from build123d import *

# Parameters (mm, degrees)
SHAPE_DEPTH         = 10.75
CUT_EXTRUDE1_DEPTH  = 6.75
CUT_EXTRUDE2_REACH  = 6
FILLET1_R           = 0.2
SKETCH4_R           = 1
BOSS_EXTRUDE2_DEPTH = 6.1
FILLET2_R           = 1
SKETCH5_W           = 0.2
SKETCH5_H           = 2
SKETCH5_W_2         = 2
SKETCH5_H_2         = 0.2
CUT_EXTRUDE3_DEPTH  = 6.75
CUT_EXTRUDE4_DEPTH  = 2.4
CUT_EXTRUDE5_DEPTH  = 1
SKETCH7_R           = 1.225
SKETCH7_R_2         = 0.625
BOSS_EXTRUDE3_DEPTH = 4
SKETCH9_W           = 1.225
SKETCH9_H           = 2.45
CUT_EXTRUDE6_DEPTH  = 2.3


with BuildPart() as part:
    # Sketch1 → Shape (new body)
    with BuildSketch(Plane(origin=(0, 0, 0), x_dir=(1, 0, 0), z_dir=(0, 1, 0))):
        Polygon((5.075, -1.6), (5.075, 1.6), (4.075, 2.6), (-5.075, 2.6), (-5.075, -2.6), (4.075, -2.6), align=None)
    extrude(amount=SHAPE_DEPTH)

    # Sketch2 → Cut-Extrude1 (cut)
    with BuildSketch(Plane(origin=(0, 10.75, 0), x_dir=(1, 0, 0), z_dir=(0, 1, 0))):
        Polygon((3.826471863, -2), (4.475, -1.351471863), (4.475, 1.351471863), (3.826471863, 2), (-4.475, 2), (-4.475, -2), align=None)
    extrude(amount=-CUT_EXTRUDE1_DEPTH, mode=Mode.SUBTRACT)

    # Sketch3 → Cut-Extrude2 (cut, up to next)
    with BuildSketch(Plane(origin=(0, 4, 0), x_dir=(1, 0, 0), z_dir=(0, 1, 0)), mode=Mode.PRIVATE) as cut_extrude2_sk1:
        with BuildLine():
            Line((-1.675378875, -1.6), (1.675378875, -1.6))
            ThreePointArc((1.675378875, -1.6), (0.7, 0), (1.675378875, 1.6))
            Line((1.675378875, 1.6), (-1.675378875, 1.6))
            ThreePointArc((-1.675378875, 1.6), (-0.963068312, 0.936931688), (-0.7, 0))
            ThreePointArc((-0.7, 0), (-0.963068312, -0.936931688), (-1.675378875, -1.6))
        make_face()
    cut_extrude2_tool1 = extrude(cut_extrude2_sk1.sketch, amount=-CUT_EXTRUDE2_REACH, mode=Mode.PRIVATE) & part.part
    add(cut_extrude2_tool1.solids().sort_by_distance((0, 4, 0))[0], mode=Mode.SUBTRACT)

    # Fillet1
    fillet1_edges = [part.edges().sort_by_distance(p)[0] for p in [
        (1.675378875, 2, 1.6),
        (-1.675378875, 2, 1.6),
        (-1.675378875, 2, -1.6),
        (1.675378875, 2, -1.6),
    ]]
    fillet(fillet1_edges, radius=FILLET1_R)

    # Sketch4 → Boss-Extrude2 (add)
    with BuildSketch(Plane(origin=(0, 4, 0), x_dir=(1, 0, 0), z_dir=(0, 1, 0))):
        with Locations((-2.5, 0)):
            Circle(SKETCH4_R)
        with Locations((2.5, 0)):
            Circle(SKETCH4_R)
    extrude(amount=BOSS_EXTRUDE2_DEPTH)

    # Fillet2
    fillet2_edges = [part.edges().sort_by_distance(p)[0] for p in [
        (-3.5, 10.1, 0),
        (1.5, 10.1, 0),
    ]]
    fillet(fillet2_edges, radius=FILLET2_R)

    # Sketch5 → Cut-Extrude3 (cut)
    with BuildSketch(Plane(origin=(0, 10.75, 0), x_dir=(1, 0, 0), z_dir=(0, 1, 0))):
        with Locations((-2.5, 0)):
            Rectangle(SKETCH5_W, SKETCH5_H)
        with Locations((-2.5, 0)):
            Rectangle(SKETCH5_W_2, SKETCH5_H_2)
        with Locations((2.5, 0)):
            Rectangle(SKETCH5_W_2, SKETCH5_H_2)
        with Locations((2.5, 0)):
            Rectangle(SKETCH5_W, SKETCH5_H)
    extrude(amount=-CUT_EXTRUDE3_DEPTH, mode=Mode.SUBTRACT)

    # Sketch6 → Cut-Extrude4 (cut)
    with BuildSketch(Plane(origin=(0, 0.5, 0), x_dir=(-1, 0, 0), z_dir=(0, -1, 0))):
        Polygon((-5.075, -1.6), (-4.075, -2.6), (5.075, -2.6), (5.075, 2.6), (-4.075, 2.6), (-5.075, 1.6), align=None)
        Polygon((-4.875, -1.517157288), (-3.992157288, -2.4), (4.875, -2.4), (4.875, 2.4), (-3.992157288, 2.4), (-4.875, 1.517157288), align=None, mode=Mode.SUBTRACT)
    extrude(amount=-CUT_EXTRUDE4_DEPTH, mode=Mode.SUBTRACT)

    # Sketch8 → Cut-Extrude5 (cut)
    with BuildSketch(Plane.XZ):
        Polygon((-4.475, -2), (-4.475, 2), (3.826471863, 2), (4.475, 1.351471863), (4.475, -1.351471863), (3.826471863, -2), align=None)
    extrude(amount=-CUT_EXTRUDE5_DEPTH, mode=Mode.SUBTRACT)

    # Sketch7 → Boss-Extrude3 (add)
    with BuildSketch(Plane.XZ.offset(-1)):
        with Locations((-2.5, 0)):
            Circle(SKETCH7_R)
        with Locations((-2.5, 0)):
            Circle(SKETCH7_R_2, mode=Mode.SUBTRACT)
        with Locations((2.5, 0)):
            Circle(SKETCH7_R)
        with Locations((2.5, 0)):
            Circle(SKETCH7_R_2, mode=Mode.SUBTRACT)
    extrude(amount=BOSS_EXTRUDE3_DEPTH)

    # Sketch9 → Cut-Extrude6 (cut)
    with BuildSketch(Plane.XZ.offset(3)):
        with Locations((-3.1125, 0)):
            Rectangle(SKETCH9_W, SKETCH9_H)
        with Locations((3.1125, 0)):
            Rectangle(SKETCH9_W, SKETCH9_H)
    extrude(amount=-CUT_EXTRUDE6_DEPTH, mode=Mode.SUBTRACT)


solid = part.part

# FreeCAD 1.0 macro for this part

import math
import FreeCAD as App
import Part
import Sketcher
Q = App.Units.Quantity


def edges_at(feature, points):
    """Names of the edges that pass closest to the given points."""
    edges = feature.Shape.Edges
    near = lambda p: min(range(len(edges)), key=lambda i: edges[i].distToShape(Part.Vertex(*p))[0])
    return sorted({f"Edge{near(p) + 1}" for p in points})

doc = App.newDocument("Part")
params = doc.addObject("Spreadsheet::Sheet", "Params")
for row, (alias, value) in enumerate([
    ("sketch1_height", "3.2 mm"),
    ("sketch1_height2", "5.2 mm"),
    ("sketch1_width", "9.15 mm"),
    ("pad1_length", "10.75 mm"),
    ("sketch2_height", "4 mm"),
    ("pocket1_length", "6.75 mm"),
    ("sketch3_radius", "1.8 mm"),
    ("fillet_radius", "0.2 mm"),
    ("sketch4_diameter", "2 mm"),
    ("pad2_length", "6.1 mm"),
    ("fillet2_radius", "1 mm"),
    ("sketch5_width", "0.2 mm"),
    ("sketch5_width2", "0.9 mm"),
    ("pocket3_length", "6.75 mm"),
    ("sketch6_height", "5.2 mm"),
    ("sketch6_height2", "3.2 mm"),
    ("sketch6_height3", "4.8 mm"),
    ("sketch6_width", "9.15 mm"),
    ("pocket4_length", "2.4 mm"),
    ("sketch7_height", "4 mm"),
    ("pocket5_length", "1 mm"),
    ("sketch8_diameter", "2.45 mm"),
    ("sketch8_diameter2", "1.25 mm"),
    ("pad3_length", "4 mm"),
    ("sketch9_height", "2.45 mm"),
    ("pocket6_length", "2.3 mm"),
], start=1):
    params.set(f"A{row}", alias)
    params.set(f"B{row}", "=" + value)
    params.setAlias(f"B{row}", alias)

body = doc.addObject("PartDesign::Body", "Body")

sketch1 = doc.addObject("Sketcher::SketchObject", "Sketch")
body.addObject(sketch1)
sketch1.AttachmentSupport = (doc.XZ_Plane, [""])
sketch1.MapMode = "FlatFace"
sketch1.addGeometry([
    Part.LineSegment(App.Vector(5.1, 1.6, 0), App.Vector(5.1, -1.6, 0)),
    Part.LineSegment(App.Vector(5.1, -1.6, 0), App.Vector(4.1, -2.6, 0)),
    Part.LineSegment(App.Vector(4.1, -2.6, 0), App.Vector(-5.1, -2.6, 0)),
    Part.LineSegment(App.Vector(-5.1, -2.6, 0), App.Vector(-5.1, 2.6, 0)),
    Part.LineSegment(App.Vector(-5.1, 2.6, 0), App.Vector(4.1, 2.6, 0)),
    Part.LineSegment(App.Vector(4.1, 2.6, 0), App.Vector(5.1, 1.6, 0)),
], False)
sketch1.addConstraint([
    Sketcher.Constraint("Coincident", 0, 2, 1, 1),
    Sketcher.Constraint("Coincident", 1, 2, 2, 1),
    Sketcher.Constraint("Coincident", 2, 2, 3, 1),
    Sketcher.Constraint("Coincident", 3, 2, 4, 1),
    Sketcher.Constraint("Coincident", 4, 2, 5, 1),
    Sketcher.Constraint("Coincident", 5, 2, 0, 1),
    Sketcher.Constraint("Vertical", 0),
    Sketcher.Constraint("Horizontal", 2),
    Sketcher.Constraint("Vertical", 3),
    Sketcher.Constraint("Horizontal", 4),
    Sketcher.Constraint("Symmetric", 1, 2, 4, 2, -1),
    Sketcher.Constraint("Perpendicular", 1, 5),
    Sketcher.Constraint("Equal", 1, 5),
    Sketcher.Constraint("DistanceY", 0, 2, 0, 1, Q("3.2 mm")),
    Sketcher.Constraint("DistanceY", 3, 1, 3, 2, Q("5.2 mm")),
    Sketcher.Constraint("DistanceX", 2, 2, 2, 1, Q("9.15 mm")),
    Sketcher.Constraint("DistanceX", -1, 1, 0, 2, Q("5.075 mm")),
])
sketch1.setExpression("Constraints[13]", "Params.sketch1_height")
sketch1.setExpression("Constraints[14]", "Params.sketch1_height2")
sketch1.setExpression("Constraints[15]", "Params.sketch1_width")
pad1 = doc.addObject("PartDesign::Pad", "Pad")
body.addObject(pad1)
pad1.Profile = sketch1
pad1.setExpression("Length", "Params.pad1_length")
pad1.Reversed = True

sketch2 = doc.addObject("Sketcher::SketchObject", "Sketch001")
body.addObject(sketch2)
sketch2.AttachmentSupport = (doc.XZ_Plane, [""])
sketch2.MapMode = "FlatFace"
sketch2.AttachmentOffset = App.Placement(App.Vector(0, 0, -10.75), App.Rotation())
sketch2.addGeometry([
    Part.LineSegment(App.Vector(3.8, 2, 0), App.Vector(4.5, 1.4, 0)),
    Part.LineSegment(App.Vector(4.5, 1.4, 0), App.Vector(4.5, -1.4, 0)),
    Part.LineSegment(App.Vector(4.5, -1.4, 0), App.Vector(3.8, -2, 0)),
    Part.LineSegment(App.Vector(3.8, -2, 0), App.Vector(-4.5, -2, 0)),
    Part.LineSegment(App.Vector(-4.5, -2, 0), App.Vector(-4.5, 2, 0)),
    Part.LineSegment(App.Vector(-4.5, 2, 0), App.Vector(3.8, 2, 0)),
], False)
sketch2.addConstraint([
    Sketcher.Constraint("Coincident", 0, 2, 1, 1),
    Sketcher.Constraint("Coincident", 1, 2, 2, 1),
    Sketcher.Constraint("Coincident", 2, 2, 3, 1),
    Sketcher.Constraint("Coincident", 3, 2, 4, 1),
    Sketcher.Constraint("Coincident", 4, 2, 5, 1),
    Sketcher.Constraint("Coincident", 5, 2, 0, 1),
    Sketcher.Constraint("Vertical", 1),
    Sketcher.Constraint("Horizontal", 3),
    Sketcher.Constraint("Vertical", 4),
    Sketcher.Constraint("Horizontal", 5),
    Sketcher.Constraint("Symmetric", 2, 2, 5, 2, -1),
    Sketcher.Constraint("Perpendicular", 0, 2),
    Sketcher.Constraint("Equal", 0, 2),
    Sketcher.Constraint("DistanceY", 4, 1, 4, 2, Q("4 mm")),
    Sketcher.Constraint("DistanceX", 3, 2, 1, 2, Q("8.95 mm")),
    Sketcher.Constraint("DistanceX", -1, 1, 0, 2, Q("4.475 mm")),
    Sketcher.Constraint("DistanceX", 3, 2, 3, 1, Q("8.301472 mm")),
])
sketch2.setExpression("Constraints[13]", "Params.sketch2_height")
pocket1 = doc.addObject("PartDesign::Pocket", "Pocket")
body.addObject(pocket1)
pocket1.Profile = sketch2
pocket1.setExpression("Length", "Params.pocket1_length")
pocket1.Reversed = True

sketch3 = doc.addObject("Sketcher::SketchObject", "Sketch002")
body.addObject(sketch3)
sketch3.AttachmentSupport = (doc.XZ_Plane, [""])
sketch3.MapMode = "FlatFace"
sketch3.AttachmentOffset = App.Placement(App.Vector(0, 0, -4), App.Rotation())
sketch3.addGeometry([
    Part.LineSegment(App.Vector(-1.7, 1.6, 0), App.Vector(1.7, 1.6, 0)),
    Part.ArcOfCircle(Part.Circle(App.Vector(2.5, 0, 0), App.Vector(0, 0, 1), 1.8), math.radians(117), math.radians(243)),
    Part.LineSegment(App.Vector(1.7, -1.6, 0), App.Vector(-1.7, -1.6, 0)),
    Part.ArcOfCircle(Part.Circle(App.Vector(-2.5, 0, 0), App.Vector(0, 0, 1), 1.8), math.radians(-63), math.radians(0)),
    Part.ArcOfCircle(Part.Circle(App.Vector(-2.5, 0, 0), App.Vector(0, 0, 1), 1.8), math.radians(0), math.radians(63)),
], False)
sketch3.addConstraint([
    Sketcher.Constraint("Coincident", 0, 2, 1, 1),
    Sketcher.Constraint("Coincident", 1, 2, 2, 1),
    Sketcher.Constraint("Coincident", 2, 2, 3, 1),
    Sketcher.Constraint("Tangent", 3, 2, 4, 1),
    Sketcher.Constraint("Coincident", 4, 2, 0, 1),
    Sketcher.Constraint("Horizontal", 0),
    Sketcher.Constraint("Horizontal", 2),
    Sketcher.Constraint("Equal", 1, 3),
    Sketcher.Constraint("Equal", 3, 4),
    Sketcher.Constraint("Symmetric", 1, 3, 3, 3, -1, 1),
    Sketcher.Constraint("Symmetric", 0, 2, 1, 2, -1),
    Sketcher.Constraint("PointOnObject", 3, 2, -1),
    Sketcher.Constraint("Radius", 1, Q("1.8 mm")),
    Sketcher.Constraint("DistanceX", 3, 3, 1, 3, Q("5 mm")),
    Sketcher.Constraint("DistanceY", -1, 1, 0, 2, Q("1.6 mm")),
])
sketch3.setExpression("Constraints[12]", "Params.sketch3_radius")
pocket2 = doc.addObject("PartDesign::Pocket", "Pocket001")
body.addObject(pocket2)
pocket2.Profile = sketch3
pocket2.Type = "UpToFirst"
pocket2.Reversed = True
doc.recompute()

fillet = doc.addObject("PartDesign::Fillet", "Fillet")
body.addObject(fillet)
fillet.Base = (pocket2, edges_at(pocket2, [
    (1.675, 2, 1.6),
    (-1.675, 2, 1.6),
    (-1.675, 2, -1.6),
    (1.675, 2, -1.6),
]))
fillet.setExpression("Radius", "Params.fillet_radius")

sketch4 = doc.addObject("Sketcher::SketchObject", "Sketch003")
body.addObject(sketch4)
sketch4.AttachmentSupport = (doc.XZ_Plane, [""])
sketch4.MapMode = "FlatFace"
sketch4.AttachmentOffset = App.Placement(App.Vector(0, 0, -4), App.Rotation())
sketch4.addGeometry([
    Part.Circle(App.Vector(-2.5, 0, 0), App.Vector(0, 0, 1), 1),
    Part.Circle(App.Vector(2.5, 0, 0), App.Vector(0, 0, 1), 1),
], False)
sketch4.addConstraint([
    Sketcher.Constraint("Equal", 0, 1),
    Sketcher.Constraint("Symmetric", 0, 3, 1, 3, -1, 1),
    Sketcher.Constraint("PointOnObject", 0, 3, -1),
    Sketcher.Constraint("Diameter", 0, Q("2 mm")),
    Sketcher.Constraint("DistanceX", 0, 3, 1, 3, Q("5 mm")),
])
sketch4.setExpression("Constraints[3]", "Params.sketch4_diameter")
pad2 = doc.addObject("PartDesign::Pad", "Pad001")
body.addObject(pad2)
pad2.Profile = sketch4
pad2.setExpression("Length", "Params.pad2_length")
pad2.Reversed = True
doc.recompute()

fillet2 = doc.addObject("PartDesign::Fillet", "Fillet001")
body.addObject(fillet2)
fillet2.Base = (pad2, edges_at(pad2, [(-3.5, 10.1, 0), (1.5, 10.1, 0)]))
fillet2.setExpression("Radius", "Params.fillet2_radius")

sketch5 = doc.addObject("Sketcher::SketchObject", "Sketch004")
body.addObject(sketch5)
sketch5.AttachmentSupport = (doc.XZ_Plane, [""])
sketch5.MapMode = "FlatFace"
sketch5.AttachmentOffset = App.Placement(App.Vector(0, 0, -10.75), App.Rotation())
sketch5.addGeometry([
    Part.LineSegment(App.Vector(-2.6, 0.1, 0), App.Vector(-2.6, 1, 0)),
    Part.LineSegment(App.Vector(-2.6, 1, 0), App.Vector(-2.4, 1, 0)),
    Part.LineSegment(App.Vector(-2.4, 1, 0), App.Vector(-2.4, 0.1, 0)),
    Part.LineSegment(App.Vector(-2.4, 0.1, 0), App.Vector(-1.5, 0.1, 0)),
    Part.LineSegment(App.Vector(-1.5, 0.1, 0), App.Vector(-1.5, -0.1, 0)),
    Part.LineSegment(App.Vector(-1.5, -0.1, 0), App.Vector(-2.4, -0.1, 0)),
    Part.LineSegment(App.Vector(-2.4, -0.1, 0), App.Vector(-2.4, -1, 0)),
    Part.LineSegment(App.Vector(-2.4, -1, 0), App.Vector(-2.6, -1, 0)),
    Part.LineSegment(App.Vector(-2.6, -1, 0), App.Vector(-2.6, -0.1, 0)),
    Part.LineSegment(App.Vector(-2.6, -0.1, 0), App.Vector(-3.5, -0.1, 0)),
    Part.LineSegment(App.Vector(-3.5, -0.1, 0), App.Vector(-3.5, 0.1, 0)),
    Part.LineSegment(App.Vector(-3.5, 0.1, 0), App.Vector(-2.6, 0.1, 0)),
    Part.LineSegment(App.Vector(1.5, -0.1, 0), App.Vector(1.5, 0.1, 0)),
    Part.LineSegment(App.Vector(1.5, 0.1, 0), App.Vector(2.4, 0.1, 0)),
    Part.LineSegment(App.Vector(2.4, 0.1, 0), App.Vector(2.4, 1, 0)),
    Part.LineSegment(App.Vector(2.4, 1, 0), App.Vector(2.6, 1, 0)),
    Part.LineSegment(App.Vector(2.6, 1, 0), App.Vector(2.6, 0.1, 0)),
    Part.LineSegment(App.Vector(2.6, 0.1, 0), App.Vector(3.5, 0.1, 0)),
    Part.LineSegment(App.Vector(3.5, 0.1, 0), App.Vector(3.5, -0.1, 0)),
    Part.LineSegment(App.Vector(3.5, -0.1, 0), App.Vector(2.6, -0.1, 0)),
    Part.LineSegment(App.Vector(2.6, -0.1, 0), App.Vector(2.6, -1, 0)),
    Part.LineSegment(App.Vector(2.6, -1, 0), App.Vector(2.4, -1, 0)),
    Part.LineSegment(App.Vector(2.4, -1, 0), App.Vector(2.4, -0.1, 0)),
    Part.LineSegment(App.Vector(2.4, -0.1, 0), App.Vector(1.5, -0.1, 0)),
], False)
sketch5.addConstraint([
    Sketcher.Constraint("Coincident", 0, 2, 1, 1),
    Sketcher.Constraint("Coincident", 1, 2, 2, 1),
    Sketcher.Constraint("Coincident", 2, 2, 3, 1),
    Sketcher.Constraint("Coincident", 3, 2, 4, 1),
    Sketcher.Constraint("Coincident", 4, 2, 5, 1),
    Sketcher.Constraint("Coincident", 5, 2, 6, 1),
    Sketcher.Constraint("Coincident", 6, 2, 7, 1),
    Sketcher.Constraint("Coincident", 7, 2, 8, 1),
    Sketcher.Constraint("Coincident", 8, 2, 9, 1),
    Sketcher.Constraint("Coincident", 9, 2, 10, 1),
    Sketcher.Constraint("Coincident", 10, 2, 11, 1),
    Sketcher.Constraint("Coincident", 11, 2, 0, 1),
    Sketcher.Constraint("Coincident", 12, 2, 13, 1),
    Sketcher.Constraint("Coincident", 13, 2, 14, 1),
    Sketcher.Constraint("Coincident", 14, 2, 15, 1),
    Sketcher.Constraint("Coincident", 15, 2, 16, 1),
    Sketcher.Constraint("Coincident", 16, 2, 17, 1),
    Sketcher.Constraint("Coincident", 17, 2, 18, 1),
    Sketcher.Constraint("Coincident", 18, 2, 19, 1),
    Sketcher.Constraint("Coincident", 19, 2, 20, 1),
    Sketcher.Constraint("Coincident", 20, 2, 21, 1),
    Sketcher.Constraint("Coincident", 21, 2, 22, 1),
    Sketcher.Constraint("Coincident", 22, 2, 23, 1),
    Sketcher.Constraint("Coincident", 23, 2, 12, 1),
    Sketcher.Constraint("Vertical", 0),
    Sketcher.Constraint("Horizontal", 1),
    Sketcher.Constraint("Vertical", 2),
    Sketcher.Constraint("Horizontal", 3),
    Sketcher.Constraint("Vertical", 4),
    Sketcher.Constraint("Horizontal", 5),
    Sketcher.Constraint("Vertical", 6),
    Sketcher.Constraint("Horizontal", 7),
    Sketcher.Constraint("Vertical", 8),
    Sketcher.Constraint("Horizontal", 9),
    Sketcher.Constraint("Vertical", 10),
    Sketcher.Constraint("Horizontal", 11),
    Sketcher.Constraint("Vertical", 12),
    Sketcher.Constraint("Horizontal", 13),
    Sketcher.Constraint("Vertical", 14),
    Sketcher.Constraint("Horizontal", 15),
    Sketcher.Constraint("Vertical", 16),
    Sketcher.Constraint("Horizontal", 17),
    Sketcher.Constraint("Vertical", 18),
    Sketcher.Constraint("Horizontal", 19),
    Sketcher.Constraint("Vertical", 20),
    Sketcher.Constraint("Horizontal", 21),
    Sketcher.Constraint("Vertical", 22),
    Sketcher.Constraint("Horizontal", 23),
    Sketcher.Constraint("Symmetric", 4, 2, 12, 2, -1, 1),
    Sketcher.Constraint("Symmetric", 6, 2, 14, 2, -1, 1),
    Sketcher.Constraint("Symmetric", 8, 2, 16, 2, -1, 1),
    Sketcher.Constraint("Symmetric", 10, 2, 18, 2, -1, 1),
    Sketcher.Constraint("Symmetric", 0, 2, 20, 2, -1, 1),
    Sketcher.Constraint("Symmetric", 2, 2, 22, 2, -1, 1),
    Sketcher.Constraint("Symmetric", 2, 2, 13, 2, -2),
    Sketcher.Constraint("Symmetric", 0, 2, 15, 2, -2),
    Sketcher.Constraint("Horizontal", 5, 2, 8, 2),
    Sketcher.Constraint("Horizontal", 3, 2, 10, 2),
    Sketcher.Constraint("Equal", 5, 9),
    Sketcher.Constraint("Equal", 23, 0),
    Sketcher.Constraint("Equal", 21, 4),
    Sketcher.Constraint("DistanceX", 1, 1, 1, 2, Q("0.2 mm")),
    Sketcher.Constraint("DistanceX", 3, 1, 3, 2, Q("0.9 mm")),
    Sketcher.Constraint("DistanceX", 3, 2, 12, 2, Q("3 mm")),
])
sketch5.setExpression("Constraints[61]", "Params.sketch5_width")
sketch5.setExpression("Constraints[62]", "Params.sketch5_width2")
pocket3 = doc.addObject("PartDesign::Pocket", "Pocket002")
body.addObject(pocket3)
pocket3.Profile = sketch5
pocket3.setExpression("Length", "Params.pocket3_length")
pocket3.Reversed = True

sketch6 = doc.addObject("Sketcher::SketchObject", "Sketch005")
body.addObject(sketch6)
sketch6.AttachmentSupport = (doc.XZ_Plane, [""])
sketch6.MapMode = "FlatFace"
sketch6.AttachmentOffset = App.Placement(App.Vector(0, 0, -0.5), App.Rotation())
sketch6.addGeometry([
    Part.LineSegment(App.Vector(5.1, 1.6, 0), App.Vector(4.1, 2.6, 0)),
    Part.LineSegment(App.Vector(4.1, 2.6, 0), App.Vector(-5.1, 2.6, 0)),
    Part.LineSegment(App.Vector(-5.1, 2.6, 0), App.Vector(-5.1, -2.6, 0)),
    Part.LineSegment(App.Vector(-5.1, -2.6, 0), App.Vector(4.1, -2.6, 0)),
    Part.LineSegment(App.Vector(4.1, -2.6, 0), App.Vector(5.1, -1.6, 0)),
    Part.LineSegment(App.Vector(5.1, -1.6, 0), App.Vector(5.1, 1.6, 0)),
    Part.LineSegment(App.Vector(4, 2.4, 0), App.Vector(4.9, 1.5, 0)),
    Part.LineSegment(App.Vector(4.9, 1.5, 0), App.Vector(4.9, -1.5, 0)),
    Part.LineSegment(App.Vector(4.9, -1.5, 0), App.Vector(4, -2.4, 0)),
    Part.LineSegment(App.Vector(4, -2.4, 0), App.Vector(-4.9, -2.4, 0)),
    Part.LineSegment(App.Vector(-4.9, -2.4, 0), App.Vector(-4.9, 2.4, 0)),
    Part.LineSegment(App.Vector(-4.9, 2.4, 0), App.Vector(4, 2.4, 0)),
], False)
sketch6.addConstraint([
    Sketcher.Constraint("Coincident", 0, 2, 1, 1),
    Sketcher.Constraint("Coincident", 1, 2, 2, 1),
    Sketcher.Constraint("Coincident", 2, 2, 3, 1),
    Sketcher.Constraint("Coincident", 3, 2, 4, 1),
    Sketcher.Constraint("Coincident", 4, 2, 5, 1),
    Sketcher.Constraint("Coincident", 5, 2, 0, 1),
    Sketcher.Constraint("Coincident", 6, 2, 7, 1),
    Sketcher.Constraint("Coincident", 7, 2, 8, 1),
    Sketcher.Constraint("Coincident", 8, 2, 9, 1),
    Sketcher.Constraint("Coincident", 9, 2, 10, 1),
    Sketcher.Constraint("Coincident", 10, 2, 11, 1),
    Sketcher.Constraint("Coincident", 11, 2, 6, 1),
    Sketcher.Constraint("Horizontal", 1),
    Sketcher.Constraint("Vertical", 2),
    Sketcher.Constraint("Horizontal", 3),
    Sketcher.Constraint("Vertical", 5),
    Sketcher.Constraint("Vertical", 7),
    Sketcher.Constraint("Horizontal", 9),
    Sketcher.Constraint("Vertical", 10),
    Sketcher.Constraint("Horizontal", 11),
    Sketcher.Constraint("Symmetric", 0, 2, 3, 2, -1),
    Sketcher.Constraint("Symmetric", 8, 2, 11, 2, -1),
    Sketcher.Constraint("Perpendicular", 0, 4),
    Sketcher.Constraint("Perpendicular", 4, 6),
    Sketcher.Constraint("Perpendicular", 6, 8),
    Sketcher.Constraint("Equal", 0, 4),
    Sketcher.Constraint("DistanceY", 2, 2, 2, 1, Q("5.2 mm")),
    Sketcher.Constraint("DistanceY", 5, 1, 5, 2, Q("3.2 mm")),
    Sketcher.Constraint("DistanceY", 10, 1, 10, 2, Q("4.8 mm")),
    Sketcher.Constraint("DistanceX", 1, 2, 1, 1, Q("9.15 mm")),
    Sketcher.Constraint("DistanceX", 6, 2, 5, 2, Q("0.2 mm")),
    Sketcher.Constraint("DistanceX", 2, 2, 9, 2, Q("0.2 mm")),
    Sketcher.Constraint("DistanceX", -1, 1, 0, 2, Q("4.075 mm")),
    Sketcher.Constraint("Distance", 6, Q("1.248528 mm")),
])
sketch6.setExpression("Constraints[26]", "Params.sketch6_height")
sketch6.setExpression("Constraints[27]", "Params.sketch6_height2")
sketch6.setExpression("Constraints[28]", "Params.sketch6_height3")
sketch6.setExpression("Constraints[29]", "Params.sketch6_width")
pocket4 = doc.addObject("PartDesign::Pocket", "Pocket003")
body.addObject(pocket4)
pocket4.Profile = sketch6
pocket4.setExpression("Length", "Params.pocket4_length")

sketch7 = doc.addObject("Sketcher::SketchObject", "Sketch006")
body.addObject(sketch7)
sketch7.AttachmentSupport = (doc.XZ_Plane, [""])
sketch7.MapMode = "FlatFace"
sketch7.addGeometry([
    Part.LineSegment(App.Vector(-4.5, 2, 0), App.Vector(-4.5, -2, 0)),
    Part.LineSegment(App.Vector(-4.5, -2, 0), App.Vector(3.8, -2, 0)),
    Part.LineSegment(App.Vector(3.8, -2, 0), App.Vector(4.5, -1.4, 0)),
    Part.LineSegment(App.Vector(4.5, -1.4, 0), App.Vector(4.5, 1.4, 0)),
    Part.LineSegment(App.Vector(4.5, 1.4, 0), App.Vector(3.8, 2, 0)),
    Part.LineSegment(App.Vector(3.8, 2, 0), App.Vector(-4.5, 2, 0)),
], False)
sketch7.addConstraint([
    Sketcher.Constraint("Coincident", 0, 2, 1, 1),
    Sketcher.Constraint("Coincident", 1, 2, 2, 1),
    Sketcher.Constraint("Coincident", 2, 2, 3, 1),
    Sketcher.Constraint("Coincident", 3, 2, 4, 1),
    Sketcher.Constraint("Coincident", 4, 2, 5, 1),
    Sketcher.Constraint("Coincident", 5, 2, 0, 1),
    Sketcher.Constraint("Vertical", 0),
    Sketcher.Constraint("Horizontal", 1),
    Sketcher.Constraint("Vertical", 3),
    Sketcher.Constraint("Horizontal", 5),
    Sketcher.Constraint("Symmetric", 1, 2, 4, 2, -1),
    Sketcher.Constraint("Perpendicular", 2, 4),
    Sketcher.Constraint("Equal", 2, 4),
    Sketcher.Constraint("DistanceY", 0, 2, 0, 1, Q("4 mm")),
    Sketcher.Constraint("DistanceX", 0, 2, 2, 2, Q("8.95 mm")),
    Sketcher.Constraint("DistanceX", 0, 2, -1, 1, Q("4.475 mm")),
    Sketcher.Constraint("DistanceX", 1, 1, 1, 2, Q("8.301472 mm")),
])
sketch7.setExpression("Constraints[13]", "Params.sketch7_height")
pocket5 = doc.addObject("PartDesign::Pocket", "Pocket004")
body.addObject(pocket5)
pocket5.Profile = sketch7
pocket5.setExpression("Length", "Params.pocket5_length")

sketch8 = doc.addObject("Sketcher::SketchObject", "Sketch007")
body.addObject(sketch8)
sketch8.AttachmentSupport = (doc.XZ_Plane, [""])
sketch8.MapMode = "FlatFace"
sketch8.AttachmentOffset = App.Placement(App.Vector(0, 0, -1), App.Rotation())
sketch8.addGeometry([
    Part.Circle(App.Vector(-2.5, 0, 0), App.Vector(0, 0, 1), 1.2),
    Part.Circle(App.Vector(-2.5, 0, 0), App.Vector(0, 0, 1), 0.6),
    Part.Circle(App.Vector(2.5, 0, 0), App.Vector(0, 0, 1), 1.2),
    Part.Circle(App.Vector(2.5, 0, 0), App.Vector(0, 0, 1), 0.6),
], False)
sketch8.addConstraint([
    Sketcher.Constraint("Coincident", 1, 3, 0, 3),
    Sketcher.Constraint("Coincident", 3, 3, 2, 3),
    Sketcher.Constraint("Equal", 0, 2),
    Sketcher.Constraint("Equal", 1, 3),
    Sketcher.Constraint("Symmetric", 0, 3, 2, 3, -1, 1),
    Sketcher.Constraint("PointOnObject", 0, 3, -1),
    Sketcher.Constraint("Diameter", 0, Q("2.45 mm")),
    Sketcher.Constraint("Diameter", 1, Q("1.25 mm")),
    Sketcher.Constraint("DistanceX", 0, 3, 2, 3, Q("5 mm")),
])
sketch8.setExpression("Constraints[6]", "Params.sketch8_diameter")
sketch8.setExpression("Constraints[7]", "Params.sketch8_diameter2")
pad3 = doc.addObject("PartDesign::Pad", "Pad002")
body.addObject(pad3)
pad3.Profile = sketch8
pad3.setExpression("Length", "Params.pad3_length")

sketch9 = doc.addObject("Sketcher::SketchObject", "Sketch008")
body.addObject(sketch9)
sketch9.AttachmentSupport = (doc.XZ_Plane, [""])
sketch9.MapMode = "FlatFace"
sketch9.AttachmentOffset = App.Placement(App.Vector(0, 0, 3), App.Rotation())
sketch9.addGeometry([
    Part.LineSegment(App.Vector(-3.7, 1.2, 0), App.Vector(-3.7, -1.2, 0)),
    Part.LineSegment(App.Vector(-3.7, -1.2, 0), App.Vector(-2.5, -1.2, 0)),
    Part.LineSegment(App.Vector(-2.5, -1.2, 0), App.Vector(-2.5, 1.2, 0)),
    Part.LineSegment(App.Vector(-2.5, 1.2, 0), App.Vector(-3.7, 1.2, 0)),
    Part.LineSegment(App.Vector(2.5, 1.2, 0), App.Vector(2.5, -1.2, 0)),
    Part.LineSegment(App.Vector(2.5, -1.2, 0), App.Vector(3.7, -1.2, 0)),
    Part.LineSegment(App.Vector(3.7, -1.2, 0), App.Vector(3.7, 1.2, 0)),
    Part.LineSegment(App.Vector(3.7, 1.2, 0), App.Vector(2.5, 1.2, 0)),
], False)
sketch9.addConstraint([
    Sketcher.Constraint("Coincident", 0, 2, 1, 1),
    Sketcher.Constraint("Coincident", 1, 2, 2, 1),
    Sketcher.Constraint("Coincident", 2, 2, 3, 1),
    Sketcher.Constraint("Coincident", 3, 2, 0, 1),
    Sketcher.Constraint("Coincident", 4, 2, 5, 1),
    Sketcher.Constraint("Coincident", 5, 2, 6, 1),
    Sketcher.Constraint("Coincident", 6, 2, 7, 1),
    Sketcher.Constraint("Coincident", 7, 2, 4, 1),
    Sketcher.Constraint("Vertical", 0),
    Sketcher.Constraint("Horizontal", 1),
    Sketcher.Constraint("Vertical", 2),
    Sketcher.Constraint("Horizontal", 3),
    Sketcher.Constraint("Vertical", 4),
    Sketcher.Constraint("Horizontal", 5),
    Sketcher.Constraint("Vertical", 6),
    Sketcher.Constraint("Horizontal", 7),
    Sketcher.Constraint("Symmetric", 2, 2, 4, 2, -1, 1),
    Sketcher.Constraint("Symmetric", 0, 2, 6, 2, -1, 1),
    Sketcher.Constraint("Horizontal", 1, 2, 4, 2),
    Sketcher.Constraint("DistanceX", 1, 2, 4, 2, Q("5 mm")),
    Sketcher.Constraint("DistanceY", 0, 2, 0, 1, Q("2.45 mm")),
    Sketcher.Constraint("DistanceX", 1, 1, 1, 2, Q("1.225 mm")),
])
sketch9.setExpression("Constraints[20]", "Params.sketch9_height")
pocket6 = doc.addObject("PartDesign::Pocket", "Pocket005")
body.addObject(pocket6)
pocket6.Profile = sketch9
pocket6.setExpression("Length", "Params.pocket6_length")

doc.recompute()
